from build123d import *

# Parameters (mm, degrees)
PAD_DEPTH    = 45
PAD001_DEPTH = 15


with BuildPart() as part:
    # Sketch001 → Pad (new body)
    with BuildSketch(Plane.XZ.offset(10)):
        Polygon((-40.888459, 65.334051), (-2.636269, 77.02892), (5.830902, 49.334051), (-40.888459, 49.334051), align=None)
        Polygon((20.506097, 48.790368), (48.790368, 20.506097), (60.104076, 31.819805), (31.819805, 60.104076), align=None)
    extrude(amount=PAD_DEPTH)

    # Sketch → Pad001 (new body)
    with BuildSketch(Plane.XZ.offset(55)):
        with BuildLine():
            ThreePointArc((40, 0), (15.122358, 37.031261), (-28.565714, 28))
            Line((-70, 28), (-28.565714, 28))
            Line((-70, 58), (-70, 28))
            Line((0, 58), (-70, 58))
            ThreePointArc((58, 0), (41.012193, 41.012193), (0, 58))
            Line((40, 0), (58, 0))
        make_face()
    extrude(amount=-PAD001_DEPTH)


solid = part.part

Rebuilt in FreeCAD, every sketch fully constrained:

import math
import FreeCAD as App
import Part
import Sketcher
Q = App.Units.Quantity

doc = App.newDocument("Part")
params = doc.addObject("Spreadsheet::Sheet", "Params")
for row, (alias, value) in enumerate([
    ("sketch1_height", "16 mm"),
    ("sketch1_length", "40 mm"),
    ("sketch1_length2", "15.999999 mm"),
    ("pad1_length", "45 mm"),
    ("sketch2_radius", "40 mm"),
    ("sketch2_radius2", "58.000001 mm"),
    ("sketch2_width", "70 mm"),
    ("sketch2_height", "30 mm"),
    ("pad2_length", "15 mm"),
], start=1):
    params.set(f"A{row}", alias)
    params.set(f"B{row}", "=" + value)
    params.setAlias(f"B{row}", alias)

body = doc.addObject("PartDesign::Body", "Body")
body.AllowCompound = True

sketch1 = body.newObject("Sketcher::SketchObject", "Sketch")
sketch1.AttachmentSupport = (doc.getObject("XZ_Plane"), [""])
sketch1.MapMode = "FlatFace"
sketch1.AttachmentOffset = App.Placement(App.Vector(0, 0, 10), App.Rotation())
sketch1.addGeometry(Part.LineSegment(App.Vector(-3, 77, 0), App.Vector(-41, 65, 0)), False)
sketch1.addGeometry(Part.LineSegment(App.Vector(-41, 65, 0), App.Vector(-41, 49, 0)), False)
sketch1.addGeometry(Part.LineSegment(App.Vector(-41, 49, 0), App.Vector(6, 49, 0)), False)
sketch1.addGeometry(Part.LineSegment(App.Vector(6, 49, 0), App.Vector(-3, 77, 0)), False)
sketch1.addGeometry(Part.LineSegment(App.Vector(21, 49, 0), App.Vector(49, 21, 0)), False)
sketch1.addGeometry(Part.LineSegment(App.Vector(49, 21, 0), App.Vector(60, 32, 0)), False)
sketch1.addGeometry(Part.LineSegment(App.Vector(60, 32, 0), App.Vector(32, 60, 0)), False)
sketch1.addGeometry(Part.LineSegment(App.Vector(32, 60, 0), App.Vector(21, 49, 0)), False)
sketch1.addConstraint(Sketcher.Constraint("Coincident", 0, 2, 1, 1))
sketch1.addConstraint(Sketcher.Constraint("Coincident", 1, 2, 2, 1))
sketch1.addConstraint(Sketcher.Constraint("Coincident", 2, 2, 3, 1))
sketch1.addConstraint(Sketcher.Constraint("Coincident", 3, 2, 0, 1))
sketch1.addConstraint(Sketcher.Constraint("Coincident", 4, 2, 5, 1))
sketch1.addConstraint(Sketcher.Constraint("Coincident", 5, 2, 6, 1))
sketch1.addConstraint(Sketcher.Constraint("Coincident", 6, 2, 7, 1))
sketch1.addConstraint(Sketcher.Constraint("Coincident", 7, 2, 4, 1))
sketch1.addConstraint(Sketcher.Constraint("Vertical", 1))
sketch1.addConstraint(Sketcher.Constraint("Horizontal", 2))
sketch1.addConstraint(Sketcher.Constraint("Perpendicular", 0, 3))
sketch1.addConstraint(Sketcher.Constraint("Perpendicular", 4, 5))
sketch1.addConstraint(Sketcher.Constraint("Perpendicular", 5, 6))
sketch1.addConstraint(Sketcher.Constraint("Perpendicular", 6, 7))
sketch1.addConstraint(Sketcher.Constraint("Equal", 0, 4))
sketch1.addConstraint(Sketcher.Constraint("DistanceY", 1, 2, 1, 1, Q("16 mm")))
sketch1.addConstraint(Sketcher.Constraint("Angle", 0, Q("-162.999999 deg")))
sketch1.addConstraint(Sketcher.Constraint("Angle", 4, Q("-45 deg")))
sketch1.addConstraint(Sketcher.Constraint("Distance", 0, Q("40 mm")))
sketch1.addConstraint(Sketcher.Constraint("Distance", 5, Q("15.999999 mm")))
sketch1.addConstraint(Sketcher.Constraint("DistanceX", 0, 2, -1, 1, Q("40.888459 mm")))
sketch1.addConstraint(Sketcher.Constraint("DistanceY", -1, 1, 0, 2, Q("65.334051 mm")))
sketch1.addConstraint(Sketcher.Constraint("DistanceY", 7, 2, 3, 2, Q("28.238552 mm")))
sketch1.addConstraint(Sketcher.Constraint("DistanceX", -1, 1, 4, 2, Q("48.790368 mm")))
sketch1.setExpression("Constraints[15]", "Params.sketch1_height")
sketch1.setExpression("Constraints[18]", "Params.sketch1_length")
sketch1.setExpression("Constraints[19]", "Params.sketch1_length2")
pad1 = body.newObject("PartDesign::Pad", "Pad")
pad1.Profile = sketch1
pad1.setExpression("Length", "Params.pad1_length")

sketch2 = body.newObject("Sketcher::SketchObject", "Sketch001")
sketch2.AttachmentSupport = (doc.getObject("XZ_Plane"), [""])
sketch2.MapMode = "FlatFace"
sketch2.AttachmentOffset = App.Placement(App.Vector(0, 0, 55), App.Rotation())
sketch2.addGeometry(Part.ArcOfCircle(Part.Circle(App.Vector(0, 0, 0), App.Vector(0, 0, 1), 40), math.radians(0), math.radians(136)), False)
sketch2.addGeometry(Part.LineSegment(App.Vector(40, 0, 0), App.Vector(58, 0, 0)), False)
sketch2.addGeometry(Part.ArcOfCircle(Part.Circle(App.Vector(0, 0, 0), App.Vector(0, 0, 1), 58), math.radians(0), math.radians(90)), False)
sketch2.addGeometry(Part.LineSegment(App.Vector(0, 58, 0), App.Vector(-70, 58, 0)), False)
sketch2.addGeometry(Part.LineSegment(App.Vector(-70, 58, 0), App.Vector(-70, 28, 0)), False)
sketch2.addGeometry(Part.LineSegment(App.Vector(-70, 28, 0), App.Vector(-29, 28, 0)), False)
sketch2.addConstraint(Sketcher.Constraint("Coincident", 0, 1, 1, 1))
sketch2.addConstraint(Sketcher.Constraint("Coincident", 1, 2, 2, 1))
sketch2.addConstraint(Sketcher.Constraint("Tangent", 2, 2, 3, 1))
sketch2.addConstraint(Sketcher.Constraint("Coincident", 3, 2, 4, 1))
sketch2.addConstraint(Sketcher.Constraint("Coincident", 4, 2, 5, 1))
sketch2.addConstraint(Sketcher.Constraint("Coincident", 5, 2, 0, 2))
sketch2.addConstraint(Sketcher.Constraint("Horizontal", 1))
sketch2.addConstraint(Sketcher.Constraint("Horizontal", 3))
sketch2.addConstraint(Sketcher.Constraint("Vertical", 4))
sketch2.addConstraint(Sketcher.Constraint("Horizontal", 5))
sketch2.addConstraint(Sketcher.Constraint("Coincident", 0, 3, -1, 1))
sketch2.addConstraint(Sketcher.Constraint("Coincident", 2, 3, -1, 1))
sketch2.addConstraint(Sketcher.Constraint("PointOnObject", 0, 1, -1))
sketch2.addConstraint(Sketcher.Constraint("Radius", 0, Q("40 mm")))
sketch2.addConstraint(Sketcher.Constraint("Radius", 2, Q("58.000001 mm")))
sketch2.addConstraint(Sketcher.Constraint("DistanceX", 3, 2, 3, 1, Q("70 mm")))
sketch2.addConstraint(Sketcher.Constraint("DistanceY", 4, 2, 4, 1, Q("30 mm")))
sketch2.setExpression("Constraints[13]", "Params.sketch2_radius")
sketch2.setExpression("Constraints[14]", "Params.sketch2_radius2")
sketch2.setExpression("Constraints[15]", "Params.sketch2_width")
sketch2.setExpression("Constraints[16]", "Params.sketch2_height")
pad2 = body.newObject("PartDesign::Pad", "Pad001")
pad2.Profile = sketch2
pad2.setExpression("Length", "Params.pad2_length")
pad2.Reversed = True

doc.recompute()
